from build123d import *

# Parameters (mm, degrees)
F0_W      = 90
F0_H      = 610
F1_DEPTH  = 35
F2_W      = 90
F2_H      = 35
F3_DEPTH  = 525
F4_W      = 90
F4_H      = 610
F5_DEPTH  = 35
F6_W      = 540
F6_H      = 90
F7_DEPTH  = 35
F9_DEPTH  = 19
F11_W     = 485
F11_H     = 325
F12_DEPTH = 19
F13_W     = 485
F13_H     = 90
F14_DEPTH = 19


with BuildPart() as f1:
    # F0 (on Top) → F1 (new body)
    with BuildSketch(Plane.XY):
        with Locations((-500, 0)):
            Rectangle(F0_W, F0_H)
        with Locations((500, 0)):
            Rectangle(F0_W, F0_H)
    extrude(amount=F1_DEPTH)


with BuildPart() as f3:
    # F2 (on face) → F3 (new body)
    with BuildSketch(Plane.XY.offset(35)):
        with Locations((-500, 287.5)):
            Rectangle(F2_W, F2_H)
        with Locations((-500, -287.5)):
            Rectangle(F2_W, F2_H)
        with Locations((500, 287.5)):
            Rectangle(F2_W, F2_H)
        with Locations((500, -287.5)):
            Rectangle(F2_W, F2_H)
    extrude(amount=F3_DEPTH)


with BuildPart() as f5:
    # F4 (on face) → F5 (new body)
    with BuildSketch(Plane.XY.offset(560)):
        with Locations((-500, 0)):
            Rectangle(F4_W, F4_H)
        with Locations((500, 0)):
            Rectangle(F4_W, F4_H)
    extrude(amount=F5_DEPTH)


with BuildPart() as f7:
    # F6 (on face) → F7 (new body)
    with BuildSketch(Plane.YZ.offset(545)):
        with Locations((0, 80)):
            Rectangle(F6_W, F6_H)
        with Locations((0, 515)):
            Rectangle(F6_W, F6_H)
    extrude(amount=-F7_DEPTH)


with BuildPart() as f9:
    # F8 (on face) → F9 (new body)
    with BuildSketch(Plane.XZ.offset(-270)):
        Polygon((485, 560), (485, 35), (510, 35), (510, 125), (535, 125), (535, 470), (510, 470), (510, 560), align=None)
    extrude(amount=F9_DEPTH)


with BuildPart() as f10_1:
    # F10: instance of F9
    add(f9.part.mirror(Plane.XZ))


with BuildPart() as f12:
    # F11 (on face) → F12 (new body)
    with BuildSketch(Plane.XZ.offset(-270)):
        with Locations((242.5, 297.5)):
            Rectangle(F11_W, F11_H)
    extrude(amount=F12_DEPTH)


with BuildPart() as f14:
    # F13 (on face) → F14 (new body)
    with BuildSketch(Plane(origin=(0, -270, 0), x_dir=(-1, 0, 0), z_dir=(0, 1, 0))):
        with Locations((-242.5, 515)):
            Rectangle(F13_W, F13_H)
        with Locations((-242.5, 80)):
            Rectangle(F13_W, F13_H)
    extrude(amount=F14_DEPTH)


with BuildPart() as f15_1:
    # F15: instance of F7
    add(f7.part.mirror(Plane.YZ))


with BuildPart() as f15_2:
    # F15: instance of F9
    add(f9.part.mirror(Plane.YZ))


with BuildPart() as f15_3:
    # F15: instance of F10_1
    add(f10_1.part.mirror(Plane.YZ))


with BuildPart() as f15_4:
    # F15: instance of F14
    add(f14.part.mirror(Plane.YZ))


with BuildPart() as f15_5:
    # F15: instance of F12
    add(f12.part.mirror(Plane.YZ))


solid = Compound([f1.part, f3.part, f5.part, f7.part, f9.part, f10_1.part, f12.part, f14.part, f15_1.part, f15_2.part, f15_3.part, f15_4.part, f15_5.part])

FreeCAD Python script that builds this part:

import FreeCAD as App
import Part
import Sketcher

V = App.Vector

doc = App.newDocument("Part")
body = doc.addObject("PartDesign::Body", "Body")
body.AllowCompound = True

sketch1 = body.newObject("Sketcher::SketchObject", "Sketch")
sketch1.AttachmentSupport = (doc.getObject("XY_Plane"), [""])
sketch1.MapMode = "FlatFace"
sketch1.addGeometry([
    Part.LineSegment(V(-545, 305, 0), V(-545, -305, 0)),
    Part.LineSegment(V(-545, -305, 0), V(-455, -305, 0)),
    Part.LineSegment(V(-455, -305, 0), V(-455, 305, 0)),
    Part.LineSegment(V(-455, 305, 0), V(-545, 305, 0)),
    Part.LineSegment(V(455, 305, 0), V(455, -305, 0)),
    Part.LineSegment(V(455, -305, 0), V(545, -305, 0)),
    Part.LineSegment(V(545, -305, 0), V(545, 305, 0)),
    Part.LineSegment(V(545, 305, 0), V(455, 305, 0)),
], False)
sketch1.addConstraint([
    Sketcher.Constraint("Coincident", 0, 2, 1, 1),
    Sketcher.Constraint("Coincident", 1, 2, 2, 1),
    Sketcher.Constraint("Coincident", 2, 2, 3, 1),
    Sketcher.Constraint("Coincident", 3, 2, 0, 1),
    Sketcher.Constraint("Coincident", 4, 2, 5, 1),
    Sketcher.Constraint("Coincident", 5, 2, 6, 1),
    Sketcher.Constraint("Coincident", 6, 2, 7, 1),
    Sketcher.Constraint("Coincident", 7, 2, 4, 1),
    Sketcher.Constraint("Vertical", 0),
    Sketcher.Constraint("Horizontal", 1),
    Sketcher.Constraint("Vertical", 2),
    Sketcher.Constraint("Horizontal", 3),
    Sketcher.Constraint("Vertical", 4),
    Sketcher.Constraint("Horizontal", 5),
    Sketcher.Constraint("Vertical", 6),
    Sketcher.Constraint("Horizontal", 7),
    Sketcher.Constraint("Symmetric", 2, 2, 4, 2, -1, 1),
    Sketcher.Constraint("Symmetric", 0, 2, 6, 2, -1, 1),
    Sketcher.Constraint("Horizontal", 1, 2, 4, 2),
    Sketcher.Constraint("DistanceX", 1, 1, 1, 2, 90.0),
    Sketcher.Constraint("DistanceY", 0, 2, 0, 1, 610.0),
    Sketcher.Constraint("DistanceX", 0, 2, -1, 1, 545.0),
])
pad1 = body.newObject("PartDesign::Pad", "Pad")
pad1.Profile = sketch1
pad1.Length = 35
body2 = doc.addObject("PartDesign::Body", "Body001")
body2.AllowCompound = True

sketch2 = body2.newObject("Sketcher::SketchObject", "Sketch001")
sketch2.AttachmentSupport = (doc.getObject("XY_Plane001"), [""])
sketch2.MapMode = "FlatFace"
sketch2.AttachmentOffset = App.Placement(V(0, 0, 35), App.Rotation())
sketch2.addGeometry([
    Part.LineSegment(V(-545, 305, 0), V(-545, 270, 0)),
    Part.LineSegment(V(-545, 270, 0), V(-455, 270, 0)),
    Part.LineSegment(V(-455, 270, 0), V(-455, 305, 0)),
    Part.LineSegment(V(-455, 305, 0), V(-545, 305, 0)),
    Part.LineSegment(V(-545, -270, 0), V(-545, -305, 0)),
    Part.LineSegment(V(-545, -305, 0), V(-455, -305, 0)),
    Part.LineSegment(V(-455, -305, 0), V(-455, -270, 0)),
    Part.LineSegment(V(-455, -270, 0), V(-545, -270, 0)),
    Part.LineSegment(V(455, 305, 0), V(455, 270, 0)),
    Part.LineSegment(V(455, 270, 0), V(545, 270, 0)),
    Part.LineSegment(V(545, 270, 0), V(545, 305, 0)),
    Part.LineSegment(V(545, 305, 0), V(455, 305, 0)),
    Part.LineSegment(V(455, -270, 0), V(455, -305, 0)),
    Part.LineSegment(V(455, -305, 0), V(545, -305, 0)),
    Part.LineSegment(V(545, -305, 0), V(545, -270, 0)),
    Part.LineSegment(V(545, -270, 0), V(455, -270, 0)),
], False)
sketch2.addConstraint([
    Sketcher.Constraint("Coincident", 0, 2, 1, 1),
    Sketcher.Constraint("Coincident", 1, 2, 2, 1),
    Sketcher.Constraint("Coincident", 2, 2, 3, 1),
    Sketcher.Constraint("Coincident", 3, 2, 0, 1),
    Sketcher.Constraint("Coincident", 4, 2, 5, 1),
    Sketcher.Constraint("Coincident", 5, 2, 6, 1),
    Sketcher.Constraint("Coincident", 6, 2, 7, 1),
    Sketcher.Constraint("Coincident", 7, 2, 4, 1),
    Sketcher.Constraint("Coincident", 8, 2, 9, 1),
    Sketcher.Constraint("Coincident", 9, 2, 10, 1),
    Sketcher.Constraint("Coincident", 10, 2, 11, 1),
    Sketcher.Constraint("Coincident", 11, 2, 8, 1),
    Sketcher.Constraint("Coincident", 12, 2, 13, 1),
    Sketcher.Constraint("Coincident", 13, 2, 14, 1),
    Sketcher.Constraint("Coincident", 14, 2, 15, 1),
    Sketcher.Constraint("Coincident", 15, 2, 12, 1),
    Sketcher.Constraint("Vertical", 0),
    Sketcher.Constraint("Horizontal", 1),
    Sketcher.Constraint("Vertical", 2),
    Sketcher.Constraint("Horizontal", 3),
    Sketcher.Constraint("Vertical", 4),
    Sketcher.Constraint("Horizontal", 5),
    Sketcher.Constraint("Vertical", 6),
    Sketcher.Constraint("Horizontal", 7),
    Sketcher.Constraint("Vertical", 8),
    Sketcher.Constraint("Horizontal", 9),
    Sketcher.Constraint("Vertical", 10),
    Sketcher.Constraint("Horizontal", 11),
    Sketcher.Constraint("Vertical", 12),
    Sketcher.Constraint("Horizontal", 13),
    Sketcher.Constraint("Vertical", 14),
    Sketcher.Constraint("Horizontal", 15),
    Sketcher.Constraint("Symmetric", 6, 2, 8, 2, -1, 1),
    Sketcher.Constraint("Symmetric", 4, 2, 10, 2, -1, 1),
    Sketcher.Constraint("Symmetric", 2, 2, 12, 2, -1, 1),
    Sketcher.Constraint("Symmetric", 0, 2, 14, 2, -1, 1),
    Sketcher.Constraint("Symmetric", 1, 2, 8, 2, -2),
    Sketcher.Constraint("Symmetric", 3, 2, 10, 2, -2),
    Sketcher.Constraint("DistanceX", 1, 1, 1, 2, 90.0),
    Sketcher.Constraint("DistanceY", 0, 2, 0, 1, 35.0),
    Sketcher.Constraint("DistanceX", 0, 2, -1, 1, 545.0),
    Sketcher.Constraint("DistanceY", -1, 1, 0, 2, 270.0),
])
pad2 = body2.newObject("PartDesign::Pad", "Pad001")
pad2.Profile = sketch2
pad2.Length = 525
body3 = doc.addObject("PartDesign::Body", "Body002")
body3.AllowCompound = True

sketch3 = body3.newObject("Sketcher::SketchObject", "Sketch002")
sketch3.AttachmentSupport = (doc.getObject("XY_Plane002"), [""])
sketch3.MapMode = "FlatFace"
sketch3.AttachmentOffset = App.Placement(V(0, 0, 560), App.Rotation())
sketch3.addGeometry([
    Part.LineSegment(V(-545, 305, 0), V(-545, -305, 0)),
    Part.LineSegment(V(-545, -305, 0), V(-455, -305, 0)),
    Part.LineSegment(V(-455, -305, 0), V(-455, 305, 0)),
    Part.LineSegment(V(-455, 305, 0), V(-545, 305, 0)),
    Part.LineSegment(V(455, 305, 0), V(455, -305, 0)),
    Part.LineSegment(V(455, -305, 0), V(545, -305, 0)),
    Part.LineSegment(V(545, -305, 0), V(545, 305, 0)),
    Part.LineSegment(V(545, 305, 0), V(455, 305, 0)),
], False)
sketch3.addConstraint([
    Sketcher.Constraint("Coincident", 0, 2, 1, 1),
    Sketcher.Constraint("Coincident", 1, 2, 2, 1),
    Sketcher.Constraint("Coincident", 2, 2, 3, 1),
    Sketcher.Constraint("Coincident", 3, 2, 0, 1),
    Sketcher.Constraint("Coincident", 4, 2, 5, 1),
    Sketcher.Constraint("Coincident", 5, 2, 6, 1),
    Sketcher.Constraint("Coincident", 6, 2, 7, 1),
    Sketcher.Constraint("Coincident", 7, 2, 4, 1),
    Sketcher.Constraint("Vertical", 0),
    Sketcher.Constraint("Horizontal", 1),
    Sketcher.Constraint("Vertical", 2),
    Sketcher.Constraint("Horizontal", 3),
    Sketcher.Constraint("Vertical", 4),
    Sketcher.Constraint("Horizontal", 5),
    Sketcher.Constraint("Vertical", 6),
    Sketcher.Constraint("Horizontal", 7),
    Sketcher.Constraint("Symmetric", 2, 2, 4, 2, -1, 1),
    Sketcher.Constraint("Symmetric", 0, 2, 6, 2, -1, 1),
    Sketcher.Constraint("Horizontal", 1, 2, 4, 2),
    Sketcher.Constraint("DistanceX", 1, 1, 1, 2, 90.0),
    Sketcher.Constraint("DistanceY", 0, 2, 0, 1, 610.0),
    Sketcher.Constraint("DistanceX", 0, 2, -1, 1, 545.0),
])
pad3 = body3.newObject("PartDesign::Pad", "Pad002")
pad3.Profile = sketch3
pad3.Length = 35
body4 = doc.addObject("PartDesign::Body", "Body003")
body4.AllowCompound = True

sketch4 = body4.newObject("Sketcher::SketchObject", "Sketch003")
sketch4.AttachmentSupport = (doc.getObject("YZ_Plane003"), [""])
sketch4.MapMode = "FlatFace"
sketch4.AttachmentOffset = App.Placement(V(0, 0, 545), App.Rotation())
sketch4.addGeometry([
    Part.LineSegment(V(-270, 125, 0), V(-270, 35, 0)),
    Part.LineSegment(V(-270, 35, 0), V(270, 35, 0)),
    Part.LineSegment(V(270, 35, 0), V(270, 125, 0)),
    Part.LineSegment(V(270, 125, 0), V(-270, 125, 0)),
    Part.LineSegment(V(-270, 560, 0), V(-270, 470, 0)),
    Part.LineSegment(V(-270, 470, 0), V(270, 470, 0)),
    Part.LineSegment(V(270, 470, 0), V(270, 560, 0)),
    Part.LineSegment(V(270, 560, 0), V(-270, 560, 0)),
], False)
sketch4.addConstraint([
    Sketcher.Constraint("Coincident", 0, 2, 1, 1),
    Sketcher.Constraint("Coincident", 1, 2, 2, 1),
    Sketcher.Constraint("Coincident", 2, 2, 3, 1),
    Sketcher.Constraint("Coincident", 3, 2, 0, 1),
    Sketcher.Constraint("Coincident", 4, 2, 5, 1),
    Sketcher.Constraint("Coincident", 5, 2, 6, 1),
    Sketcher.Constraint("Coincident", 6, 2, 7, 1),
    Sketcher.Constraint("Coincident", 7, 2, 4, 1),
    Sketcher.Constraint("Vertical", 0),
    Sketcher.Constraint("Horizontal", 1),
    Sketcher.Constraint("Vertical", 2),
    Sketcher.Constraint("Horizontal", 3),
    Sketcher.Constraint("Vertical", 4),
    Sketcher.Constraint("Horizontal", 5),
    Sketcher.Constraint("Vertical", 6),
    Sketcher.Constraint("Horizontal", 7),
    Sketcher.Constraint("Vertical", 3, 2, 4, 2),
    Sketcher.Constraint("Vertical", 2, 2, 5, 2),
    Sketcher.Constraint("Equal", 2, 4),
    Sketcher.Constraint("DistanceX", 1, 1, 1, 2, 540.0),
    Sketcher.Constraint("DistanceY", 0, 2, 0, 1, 90.0),
    Sketcher.Constraint("DistanceX", 0, 2, -1, 1, 270.0),
    Sketcher.Constraint("DistanceY", -1, 1, 0, 2, 35.0),
    Sketcher.Constraint("DistanceY", -1, 1, 4, 2, 470.0),
])
pad4 = body4.newObject("PartDesign::Pad", "Pad003")
pad4.Profile = sketch4
pad4.Length = 35
pad4.Reversed = True
body5 = doc.addObject("PartDesign::Body", "Body004")

sketch5 = body5.newObject("Sketcher::SketchObject", "Sketch004")
sketch5.AttachmentSupport = (doc.getObject("XZ_Plane004"), [""])
sketch5.MapMode = "FlatFace"
sketch5.AttachmentOffset = App.Placement(V(0, 0, -270), App.Rotation())
sketch5.addGeometry([
    Part.LineSegment(V(485, 560, 0), V(485, 35, 0)),
    Part.LineSegment(V(485, 35, 0), V(510, 35, 0)),
    Part.LineSegment(V(510, 35, 0), V(510, 125, 0)),
    Part.LineSegment(V(510, 125, 0), V(535, 125, 0)),
    Part.LineSegment(V(535, 125, 0), V(535, 470, 0)),
    Part.LineSegment(V(535, 470, 0), V(510, 470, 0)),
    Part.LineSegment(V(510, 470, 0), V(510, 560, 0)),
    Part.LineSegment(V(510, 560, 0), V(485, 560, 0)),
], False)
sketch5.addConstraint([
    Sketcher.Constraint("Coincident", 0, 2, 1, 1),
    Sketcher.Constraint("Coincident", 1, 2, 2, 1),
    Sketcher.Constraint("Coincident", 2, 2, 3, 1),
    Sketcher.Constraint("Coincident", 3, 2, 4, 1),
    Sketcher.Constraint("Coincident", 4, 2, 5, 1),
    Sketcher.Constraint("Coincident", 5, 2, 6, 1),
    Sketcher.Constraint("Coincident", 6, 2, 7, 1),
    Sketcher.Constraint("Coincident", 7, 2, 0, 1),
    Sketcher.Constraint("Vertical", 0),
    Sketcher.Constraint("Horizontal", 1),
    Sketcher.Constraint("Vertical", 2),
    Sketcher.Constraint("Horizontal", 3),
    Sketcher.Constraint("Vertical", 4),
    Sketcher.Constraint("Horizontal", 5),
    Sketcher.Constraint("Vertical", 6),
    Sketcher.Constraint("Horizontal", 7),
    Sketcher.Constraint("Vertical", 2, 2, 5, 2),
    Sketcher.Constraint("Equal", 1, 3),
    Sketcher.Constraint("Equal", 2, 6),
    Sketcher.Constraint("DistanceX", 1, 1, 1, 2, 25.0),
    Sketcher.Constraint("DistanceY", 0, 2, 0, 1, 525.0),
    Sketcher.Constraint("DistanceY", 2, 1, 2, 2, 90.0),
    Sketcher.Constraint("DistanceX", -1, 1, 0, 2, 485.0),
    Sketcher.Constraint("DistanceY", -1, 1, 0, 2, 35.0),
])
pad5 = body5.newObject("PartDesign::Pad", "Pad004")
pad5.Profile = sketch5
pad5.Length = 19
body6 = doc.addObject("PartDesign::Body", "Body005")
doc.recompute()

mirroring = doc.addObject("Part::Mirroring", "Mirroring")
mirroring.Source = body5
mirroring.Base = V(0, 0, 0)
mirroring.Normal = V(0, -1, 0)
body6.BaseFeature = mirroring
doc.recompute()
body7 = doc.addObject("PartDesign::Body", "Body006")

sketch6 = body7.newObject("Sketcher::SketchObject", "Sketch005")
sketch6.AttachmentSupport = (doc.getObject("XZ_Plane006"), [""])
sketch6.MapMode = "FlatFace"
sketch6.AttachmentOffset = App.Placement(V(0, 0, -270), App.Rotation())
sketch6.addGeometry([
    Part.LineSegment(V(0, 460, 0), V(0, 135, 0)),
    Part.LineSegment(V(0, 135, 0), V(485, 135, 0)),
    Part.LineSegment(V(485, 135, 0), V(485, 460, 0)),
    Part.LineSegment(V(485, 460, 0), V(0, 460, 0)),
], False)
sketch6.addConstraint([
    Sketcher.Constraint("Coincident", 0, 2, 1, 1),
    Sketcher.Constraint("Coincident", 1, 2, 2, 1),
    Sketcher.Constraint("Coincident", 2, 2, 3, 1),
    Sketcher.Constraint("Coincident", 3, 2, 0, 1),
    Sketcher.Constraint("Vertical", 0),
    Sketcher.Constraint("Horizontal", 1),
    Sketcher.Constraint("Vertical", 2),
    Sketcher.Constraint("Horizontal", 3),
    Sketcher.Constraint("PointOnObject", 0, 2, -2),
    Sketcher.Constraint("DistanceX", 1, 1, 1, 2, 485.0),
    Sketcher.Constraint("DistanceY", 0, 2, 0, 1, 325.0),
    Sketcher.Constraint("DistanceY", -1, 1, 0, 2, 135.0),
])
pad6 = body7.newObject("PartDesign::Pad", "Pad005")
pad6.Profile = sketch6
pad6.Length = 19
body8 = doc.addObject("PartDesign::Body", "Body007")
body8.AllowCompound = True

sketch7 = body8.newObject("Sketcher::SketchObject", "Sketch006")
sketch7.AttachmentSupport = (doc.getObject("XZ_Plane007"), [""])
sketch7.MapMode = "FlatFace"
sketch7.AttachmentOffset = App.Placement(V(0, 0, 270), App.Rotation())
sketch7.addGeometry([
    Part.LineSegment(V(485, 560, 0), V(485, 470, 0)),
    Part.LineSegment(V(485, 470, 0), V(0, 470, 0)),
    Part.LineSegment(V(0, 470, 0), V(0, 560, 0)),
    Part.LineSegment(V(0, 560, 0), V(485, 560, 0)),
    Part.LineSegment(V(485, 125, 0), V(485, 35, 0)),
    Part.LineSegment(V(485, 35, 0), V(0, 35, 0)),
    Part.LineSegment(V(0, 35, 0), V(0, 125, 0)),
    Part.LineSegment(V(0, 125, 0), V(485, 125, 0)),
], False)
sketch7.addConstraint([
    Sketcher.Constraint("Coincident", 0, 2, 1, 1),
    Sketcher.Constraint("Coincident", 1, 2, 2, 1),
    Sketcher.Constraint("Coincident", 2, 2, 3, 1),
    Sketcher.Constraint("Coincident", 3, 2, 0, 1),
    Sketcher.Constraint("Coincident", 4, 2, 5, 1),
    Sketcher.Constraint("Coincident", 5, 2, 6, 1),
    Sketcher.Constraint("Coincident", 6, 2, 7, 1),
    Sketcher.Constraint("Coincident", 7, 2, 4, 1),
    Sketcher.Constraint("Vertical", 0),
    Sketcher.Constraint("Horizontal", 1),
    Sketcher.Constraint("Vertical", 2),
    Sketcher.Constraint("Horizontal", 3),
    Sketcher.Constraint("Vertical", 4),
    Sketcher.Constraint("Horizontal", 5),
    Sketcher.Constraint("Vertical", 6),
    Sketcher.Constraint("Horizontal", 7),
    Sketcher.Constraint("PointOnObject", 1, 2, -2),
    Sketcher.Constraint("PointOnObject", 5, 2, -2),
    Sketcher.Constraint("Vertical", 3, 2, 4, 2),
    Sketcher.Constraint("Equal", 2, 4),
    Sketcher.Constraint("DistanceX", 1, 2, 1, 1, 485.0),
    Sketcher.Constraint("DistanceY", 0, 2, 0, 1, 90.0),
    Sketcher.Constraint("DistanceY", -1, 1, 0, 2, 470.0),
    Sketcher.Constraint("DistanceY", -1, 1, 4, 2, 35.0),
])
pad7 = body8.newObject("PartDesign::Pad", "Pad006")
pad7.Profile = sketch7
pad7.Length = 19
pad7.Reversed = True
body9 = doc.addObject("PartDesign::Body", "Body008")
body9.AllowCompound = True
doc.recompute()

mirroring2 = doc.addObject("Part::Mirroring", "Mirroring001")
mirroring2.Source = body4
mirroring2.Base = V(0, 0, 0)
mirroring2.Normal = V(1, 0, 0)
body9.BaseFeature = mirroring2
doc.recompute()
body10 = doc.addObject("PartDesign::Body", "Body009")
doc.recompute()

mirroring3 = doc.addObject("Part::Mirroring", "Mirroring002")
mirroring3.Source = body5
mirroring3.Base = V(0, 0, 0)
mirroring3.Normal = V(1, 0, 0)
body10.BaseFeature = mirroring3
doc.recompute()
body11 = doc.addObject("PartDesign::Body", "Body010")
doc.recompute()

mirroring4 = doc.addObject("Part::Mirroring", "Mirroring003")
mirroring4.Source = body6
mirroring4.Base = V(0, 0, 0)
mirroring4.Normal = V(1, 0, 0)
body11.BaseFeature = mirroring4
doc.recompute()
body12 = doc.addObject("PartDesign::Body", "Body011")
body12.AllowCompound = True
doc.recompute()

mirroring5 = doc.addObject("Part::Mirroring", "Mirroring004")
mirroring5.Source = body8
mirroring5.Base = V(0, 0, 0)
mirroring5.Normal = V(1, 0, 0)
body12.BaseFeature = mirroring5
doc.recompute()
body13 = doc.addObject("PartDesign::Body", "Body012")
doc.recompute()

mirroring6 = doc.addObject("Part::Mirroring", "Mirroring005")
mirroring6.Source = body7
mirroring6.Base = V(0, 0, 0)
mirroring6.Normal = V(1, 0, 0)
body13.BaseFeature = mirroring6
doc.recompute()
mirroring.Visibility = False
mirroring2.Visibility = False
mirroring3.Visibility = False
mirroring4.Visibility = False
mirroring5.Visibility = False
mirroring6.Visibility = False

doc.recompute()
